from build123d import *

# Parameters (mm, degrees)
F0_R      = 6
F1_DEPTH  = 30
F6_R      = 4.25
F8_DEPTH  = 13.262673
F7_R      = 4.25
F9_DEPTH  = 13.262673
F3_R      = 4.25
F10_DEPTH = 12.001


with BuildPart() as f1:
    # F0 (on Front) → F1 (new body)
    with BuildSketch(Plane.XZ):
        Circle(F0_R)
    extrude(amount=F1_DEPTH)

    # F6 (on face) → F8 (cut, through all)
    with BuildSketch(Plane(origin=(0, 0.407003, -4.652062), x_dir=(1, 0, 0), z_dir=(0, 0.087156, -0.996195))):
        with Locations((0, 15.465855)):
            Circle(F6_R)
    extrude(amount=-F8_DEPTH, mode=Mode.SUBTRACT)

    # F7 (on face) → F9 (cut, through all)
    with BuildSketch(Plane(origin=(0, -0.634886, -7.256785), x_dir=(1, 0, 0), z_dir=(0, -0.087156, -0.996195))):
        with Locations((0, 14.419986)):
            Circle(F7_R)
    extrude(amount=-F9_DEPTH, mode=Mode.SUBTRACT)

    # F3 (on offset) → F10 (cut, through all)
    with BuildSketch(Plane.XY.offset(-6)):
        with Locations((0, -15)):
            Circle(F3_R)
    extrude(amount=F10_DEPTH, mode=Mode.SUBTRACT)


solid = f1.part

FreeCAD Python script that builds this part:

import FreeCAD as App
import Part
import Sketcher
from FreeCAD import Vector
Q = App.Units.Quantity

doc = App.newDocument("Part")
body = doc.addObject("PartDesign::Body", "Body")

# Sketch on XZ plane
sketch1 = body.newObject("Sketcher::SketchObject", "Sketch")
sketch1.AttachmentSupport = (doc.getObject("XZ_Plane"), [""])
sketch1.MapMode = "FlatFace"
sketch1.addGeometry(Part.Circle(Vector(0, 0, 0), Vector(0, 0, 1), 6), False)
sketch1.addConstraint([
    Sketcher.Constraint("Coincident", 0, 3, -1, 1),
    Sketcher.Constraint("Diameter", 0, Q("12 mm")),
])
pad1 = body.newObject("PartDesign::Pad", "Pad")
pad1.Profile = sketch1
pad1.Length = 30

# Sketch on an angled plane
sketch2 = body.newObject("Sketcher::SketchObject", "Sketch001")
sketch2.Placement = App.Placement(Vector(0, 0.407003, -4.652062), App.Rotation(Vector(1, 0, 0), Vector(0, -0.996194678, -0.087155972), Vector(0, 0.087155972, -0.996194678), "ZXY"))
sketch2.addGeometry(Part.Circle(Vector(0, 15.5, 0), Vector(0, 0, 1), 4.2), False)
sketch2.addConstraint([
    Sketcher.Constraint("PointOnObject", 0, 3, -2),
    Sketcher.Constraint("Diameter", 0, Q("8.5 mm")),
    Sketcher.Constraint("DistanceY", -1, 1, 0, 3, Q("15.465855 mm")),
])
pocket1 = body.newObject("PartDesign::Pocket", "Pocket")
pocket1.Profile = sketch2
pocket1.Type = "ThroughAll"

# Sketch on an angled plane
sketch3 = body.newObject("Sketcher::SketchObject", "Sketch002")
sketch3.Placement = App.Placement(Vector(0, -0.634886, -7.256785), App.Rotation(Vector(1, 0, 0), Vector(0, -0.996194678, 0.087155972), Vector(0, -0.087155972, -0.996194678), "ZXY"))
sketch3.addGeometry(Part.Circle(Vector(0, 14.4, 0), Vector(0, 0, 1), 4.2), False)
sketch3.addConstraint([
    Sketcher.Constraint("PointOnObject", 0, 3, -2),
    Sketcher.Constraint("Diameter", 0, Q("8.5 mm")),
    Sketcher.Constraint("DistanceY", -1, 1, 0, 3, Q("14.419986 mm")),
])
pocket2 = body.newObject("PartDesign::Pocket", "Pocket001")
pocket2.Profile = sketch3
pocket2.Type = "ThroughAll"

# Sketch on XY plane
sketch4 = body.newObject("Sketcher::SketchObject", "Sketch003")
sketch4.AttachmentSupport = (doc.getObject("XY_Plane"), [""])
sketch4.MapMode = "FlatFace"
sketch4.AttachmentOffset = App.Placement(Vector(0, 0, -6), App.Rotation())
sketch4.addGeometry(Part.Circle(Vector(0, -15, 0), Vector(0, 0, 1), 4.2), False)
sketch4.addConstraint([
    Sketcher.Constraint("PointOnObject", 0, 3, -2),
    Sketcher.Constraint("Diameter", 0, Q("8.5 mm")),
    Sketcher.Constraint("DistanceY", 0, 3, -1, 1, Q("15 mm")),
])
pocket3 = body.newObject("PartDesign::Pocket", "Pocket002")
pocket3.Profile = sketch4
pocket3.Type = "ThroughAll"
pocket3.Reversed = True

doc.recompute()
